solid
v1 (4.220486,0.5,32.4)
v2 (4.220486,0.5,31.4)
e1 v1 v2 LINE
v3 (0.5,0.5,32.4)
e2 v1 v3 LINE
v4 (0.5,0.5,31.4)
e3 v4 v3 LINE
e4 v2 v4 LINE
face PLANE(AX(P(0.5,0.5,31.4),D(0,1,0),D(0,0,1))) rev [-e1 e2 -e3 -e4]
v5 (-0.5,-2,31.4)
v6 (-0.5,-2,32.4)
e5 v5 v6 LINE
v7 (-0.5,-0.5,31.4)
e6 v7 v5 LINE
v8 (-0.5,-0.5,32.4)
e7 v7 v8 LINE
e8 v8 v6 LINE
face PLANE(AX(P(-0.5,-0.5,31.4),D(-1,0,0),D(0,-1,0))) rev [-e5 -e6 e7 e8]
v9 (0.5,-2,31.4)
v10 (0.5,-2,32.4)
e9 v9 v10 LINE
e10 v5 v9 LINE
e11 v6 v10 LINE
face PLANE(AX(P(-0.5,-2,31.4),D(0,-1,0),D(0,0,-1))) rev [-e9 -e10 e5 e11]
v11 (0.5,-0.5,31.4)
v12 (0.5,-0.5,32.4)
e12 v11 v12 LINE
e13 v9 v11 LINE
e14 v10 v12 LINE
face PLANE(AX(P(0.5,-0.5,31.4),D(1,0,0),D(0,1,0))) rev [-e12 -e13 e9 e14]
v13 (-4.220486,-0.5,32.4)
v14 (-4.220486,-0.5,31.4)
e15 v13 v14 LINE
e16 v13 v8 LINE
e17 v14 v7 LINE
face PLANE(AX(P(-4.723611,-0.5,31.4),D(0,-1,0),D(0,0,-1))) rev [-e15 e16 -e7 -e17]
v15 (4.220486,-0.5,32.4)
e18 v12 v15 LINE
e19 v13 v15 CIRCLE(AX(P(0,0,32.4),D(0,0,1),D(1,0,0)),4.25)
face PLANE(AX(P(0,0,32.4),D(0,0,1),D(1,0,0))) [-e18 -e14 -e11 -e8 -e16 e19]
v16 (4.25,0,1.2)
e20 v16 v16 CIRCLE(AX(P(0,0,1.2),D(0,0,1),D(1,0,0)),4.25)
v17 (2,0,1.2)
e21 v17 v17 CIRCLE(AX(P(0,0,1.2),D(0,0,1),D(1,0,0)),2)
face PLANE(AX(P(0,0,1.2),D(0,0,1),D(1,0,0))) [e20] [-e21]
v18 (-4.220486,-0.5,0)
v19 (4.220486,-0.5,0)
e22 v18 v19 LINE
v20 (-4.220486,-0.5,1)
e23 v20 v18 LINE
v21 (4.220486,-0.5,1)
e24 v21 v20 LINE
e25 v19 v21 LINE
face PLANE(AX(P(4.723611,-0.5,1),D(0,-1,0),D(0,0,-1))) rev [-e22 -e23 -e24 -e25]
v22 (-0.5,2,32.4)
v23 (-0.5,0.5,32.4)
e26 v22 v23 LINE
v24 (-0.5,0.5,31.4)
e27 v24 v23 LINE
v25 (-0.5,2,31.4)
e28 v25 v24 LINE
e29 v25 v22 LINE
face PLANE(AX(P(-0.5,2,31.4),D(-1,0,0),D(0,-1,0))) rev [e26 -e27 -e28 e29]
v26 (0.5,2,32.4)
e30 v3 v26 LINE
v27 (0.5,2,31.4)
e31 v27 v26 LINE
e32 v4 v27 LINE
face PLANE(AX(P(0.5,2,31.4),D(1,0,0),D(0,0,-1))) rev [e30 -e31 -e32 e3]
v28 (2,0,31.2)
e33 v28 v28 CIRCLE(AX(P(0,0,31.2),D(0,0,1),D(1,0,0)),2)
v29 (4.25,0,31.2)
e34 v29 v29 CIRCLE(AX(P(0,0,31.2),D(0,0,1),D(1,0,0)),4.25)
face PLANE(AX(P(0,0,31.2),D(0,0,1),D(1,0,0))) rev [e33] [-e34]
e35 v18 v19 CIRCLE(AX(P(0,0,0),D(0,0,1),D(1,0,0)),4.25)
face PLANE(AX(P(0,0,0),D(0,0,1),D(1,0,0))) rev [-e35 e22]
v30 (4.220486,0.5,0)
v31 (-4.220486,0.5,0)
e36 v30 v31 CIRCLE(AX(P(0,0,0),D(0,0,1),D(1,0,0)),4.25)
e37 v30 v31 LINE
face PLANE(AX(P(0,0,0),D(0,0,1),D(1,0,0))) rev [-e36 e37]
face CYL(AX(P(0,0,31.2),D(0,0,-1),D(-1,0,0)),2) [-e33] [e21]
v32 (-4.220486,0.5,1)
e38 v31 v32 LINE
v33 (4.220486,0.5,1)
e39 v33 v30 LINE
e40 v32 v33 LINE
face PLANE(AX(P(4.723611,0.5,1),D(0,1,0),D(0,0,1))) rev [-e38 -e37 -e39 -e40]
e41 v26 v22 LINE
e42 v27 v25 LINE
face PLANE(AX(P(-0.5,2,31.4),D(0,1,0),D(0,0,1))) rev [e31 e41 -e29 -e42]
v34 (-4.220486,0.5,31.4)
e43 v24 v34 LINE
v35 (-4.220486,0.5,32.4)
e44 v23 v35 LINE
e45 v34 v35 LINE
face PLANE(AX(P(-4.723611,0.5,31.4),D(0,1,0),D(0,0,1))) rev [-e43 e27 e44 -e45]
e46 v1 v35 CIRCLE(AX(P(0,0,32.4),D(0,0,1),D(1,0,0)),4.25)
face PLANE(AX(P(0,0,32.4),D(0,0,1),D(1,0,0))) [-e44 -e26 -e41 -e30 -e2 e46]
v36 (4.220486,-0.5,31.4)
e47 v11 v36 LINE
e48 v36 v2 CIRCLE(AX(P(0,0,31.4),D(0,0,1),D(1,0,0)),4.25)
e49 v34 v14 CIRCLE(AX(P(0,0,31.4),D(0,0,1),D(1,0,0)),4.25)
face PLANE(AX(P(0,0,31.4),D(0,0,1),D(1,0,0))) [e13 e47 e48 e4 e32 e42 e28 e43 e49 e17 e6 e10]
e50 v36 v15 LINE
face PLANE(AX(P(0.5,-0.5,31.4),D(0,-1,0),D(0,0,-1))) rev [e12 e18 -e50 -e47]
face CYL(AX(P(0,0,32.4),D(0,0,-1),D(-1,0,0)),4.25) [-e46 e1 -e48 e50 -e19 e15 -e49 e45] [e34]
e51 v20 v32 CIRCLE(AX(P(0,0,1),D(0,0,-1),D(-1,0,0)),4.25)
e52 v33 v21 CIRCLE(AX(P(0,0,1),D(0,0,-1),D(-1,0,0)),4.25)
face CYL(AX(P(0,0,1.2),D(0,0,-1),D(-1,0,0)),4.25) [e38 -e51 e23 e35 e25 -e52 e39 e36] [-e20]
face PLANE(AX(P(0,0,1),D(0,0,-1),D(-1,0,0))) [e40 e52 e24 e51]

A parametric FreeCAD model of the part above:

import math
import FreeCAD as App
import Part
import Sketcher

doc = App.newDocument("Part")
params = doc.addObject("Spreadsheet::Sheet", "Params")
for row, (alias, value) in enumerate([
    ("sketch1_diameter", "8.5 mm"),
    ("pad1_length", "1.2 mm"),
    ("sketch2_diameter", "4 mm"),
    ("pad2_length", "30 mm"),
    ("sketch3_diameter", "8.5 mm"),
    ("pad3_length", "1.2 mm"),
    ("sketch4_width", "1 mm"),
    ("sketch4_radius", "4.75 mm"),
    ("sketch4_height", "1.5 mm"),
    ("pocket1_length", "1 mm"),
    ("sketch5_radius", "4.75 mm"),
    ("pocket2_length", "1 mm"),
], start=1):
    params.set(f"A{row}", alias)
    params.set(f"B{row}", "=" + value)
    params.setAlias(f"B{row}", alias)

body = doc.addObject("PartDesign::Body", "Body")

sketch1 = body.newObject("Sketcher::SketchObject", "Sketch")
sketch1.AttachmentSupport = (doc.getObject("XY_Plane"), [""])
sketch1.MapMode = "FlatFace"
sketch1.addGeometry(Part.Circle(App.Vector(0, 0, 0), App.Vector(0, 0, 1), 4.2), False)
sketch1.addConstraint(Sketcher.Constraint("Coincident", 0, 3, -1, 1))
sketch1.addConstraint(Sketcher.Constraint("Diameter", 0, 8.5))
sketch1.setExpression("Constraints[1]", "Params.sketch1_diameter")
pad1 = body.newObject("PartDesign::Pad", "Pad")
pad1.Profile = sketch1
pad1.setExpression("Length", "Params.pad1_length")

sketch2 = body.newObject("Sketcher::SketchObject", "Sketch001")
sketch2.AttachmentSupport = (doc.getObject("XY_Plane"), [""])
sketch2.MapMode = "FlatFace"
sketch2.AttachmentOffset = App.Placement(App.Vector(0, 0, 1.2), App.Rotation())
sketch2.addGeometry(Part.Circle(App.Vector(0, 0, 0), App.Vector(0, 0, 1), 2), False)
sketch2.addConstraint(Sketcher.Constraint("Coincident", 0, 3, -1, 1))
sketch2.addConstraint(Sketcher.Constraint("Diameter", 0, 4.0))
sketch2.setExpression("Constraints[1]", "Params.sketch2_diameter")
pad2 = body.newObject("PartDesign::Pad", "Pad001")
pad2.Profile = sketch2
pad2.setExpression("Length", "Params.pad2_length")

sketch3 = body.newObject("Sketcher::SketchObject", "Sketch002")
sketch3.AttachmentSupport = (doc.getObject("XY_Plane"), [""])
sketch3.MapMode = "FlatFace"
sketch3.AttachmentOffset = App.Placement(App.Vector(0, 0, 31.2), App.Rotation())
sketch3.addGeometry(Part.Circle(App.Vector(0, 0, 0), App.Vector(0, 0, 1), 4.2), False)
sketch3.addConstraint(Sketcher.Constraint("Coincident", 0, 3, -1, 1))
sketch3.addConstraint(Sketcher.Constraint("Diameter", 0, 8.5))
sketch3.setExpression("Constraints[1]", "Params.sketch3_diameter")
pad3 = body.newObject("PartDesign::Pad", "Pad002")
pad3.Profile = sketch3
pad3.setExpression("Length", "Params.pad3_length")

sketch4 = body.newObject("Sketcher::SketchObject", "Sketch003")
sketch4.AttachmentSupport = (doc.getObject("XY_Plane"), [""])
sketch4.MapMode = "FlatFace"
sketch4.AttachmentOffset = App.Placement(App.Vector(0, 0, 32.4), App.Rotation())
sketch4.addGeometry(Part.LineSegment(App.Vector(-0.5, 2, 0), App.Vector(-0.5, 0.5, 0)), False)
sketch4.addGeometry(Part.LineSegment(App.Vector(-0.5, 0.5, 0), App.Vector(-4.7, 0.5, 0)), False)
sketch4.addGeometry(Part.ArcOfCircle(Part.Circle(App.Vector(0, 0, 0), App.Vector(0, 0, 1), 4.8), math.radians(173.96), math.radians(186.04)), False)
sketch4.addGeometry(Part.LineSegment(App.Vector(-4.7, -0.5, 0), App.Vector(-0.5, -0.5, 0)), False)
sketch4.addGeometry(Part.LineSegment(App.Vector(-0.5, -0.5, 0), App.Vector(-0.5, -2, 0)), False)
sketch4.addGeometry(Part.LineSegment(App.Vector(-0.5, -2, 0), App.Vector(0.5, -2, 0)), False)
sketch4.addGeometry(Part.LineSegment(App.Vector(0.5, -2, 0), App.Vector(0.5, -0.5, 0)), False)
sketch4.addGeometry(Part.LineSegment(App.Vector(0.5, -0.5, 0), App.Vector(4.7, -0.5, 0)), False)
sketch4.addGeometry(Part.ArcOfCircle(Part.Circle(App.Vector(0, 0, 0), App.Vector(0, 0, 1), 4.8), math.radians(-6.04), math.radians(6.04)), False)
sketch4.addGeometry(Part.LineSegment(App.Vector(4.7, 0.5, 0), App.Vector(0.5, 0.5, 0)), False)
sketch4.addGeometry(Part.LineSegment(App.Vector(0.5, 0.5, 0), App.Vector(0.5, 2, 0)), False)
sketch4.addGeometry(Part.LineSegment(App.Vector(0.5, 2, 0), App.Vector(-0.5, 2, 0)), False)
sketch4.addConstraint(Sketcher.Constraint("Coincident", 0, 2, 1, 1))
sketch4.addConstraint(Sketcher.Constraint("Coincident", 1, 2, 2, 1))
sketch4.addConstraint(Sketcher.Constraint("Coincident", 2, 2, 3, 1))
sketch4.addConstraint(Sketcher.Constraint("Coincident", 3, 2, 4, 1))
sketch4.addConstraint(Sketcher.Constraint("Coincident", 4, 2, 5, 1))
sketch4.addConstraint(Sketcher.Constraint("Coincident", 5, 2, 6, 1))
sketch4.addConstraint(Sketcher.Constraint("Coincident", 6, 2, 7, 1))
sketch4.addConstraint(Sketcher.Constraint("Coincident", 7, 2, 8, 1))
sketch4.addConstraint(Sketcher.Constraint("Coincident", 8, 2, 9, 1))
sketch4.addConstraint(Sketcher.Constraint("Coincident", 9, 2, 10, 1))
sketch4.addConstraint(Sketcher.Constraint("Coincident", 10, 2, 11, 1))
sketch4.addConstraint(Sketcher.Constraint("Coincident", 11, 2, 0, 1))
sketch4.addConstraint(Sketcher.Constraint("Vertical", 0))
sketch4.addConstraint(Sketcher.Constraint("Horizontal", 1))
sketch4.addConstraint(Sketcher.Constraint("Horizontal", 3))
sketch4.addConstraint(Sketcher.Constraint("Vertical", 4))
sketch4.addConstraint(Sketcher.Constraint("Horizontal", 5))
sketch4.addConstraint(Sketcher.Constraint("Vertical", 6))
sketch4.addConstraint(Sketcher.Constraint("Horizontal", 7))
sketch4.addConstraint(Sketcher.Constraint("Horizontal", 9))
sketch4.addConstraint(Sketcher.Constraint("Vertical", 10))
sketch4.addConstraint(Sketcher.Constraint("Horizontal", 11))
sketch4.addConstraint(Sketcher.Constraint("Coincident", 2, 3, -1, 1))
sketch4.addConstraint(Sketcher.Constraint("Coincident", 8, 3, -1, 1))
sketch4.addConstraint(Sketcher.Constraint("Equal", 2, 8))
sketch4.addConstraint(Sketcher.Constraint("Symmetric", 0, 2, 6, 2, -1, 1))
sketch4.addConstraint(Sketcher.Constraint("Symmetric", 3, 2, 9, 2, -1, 1))
sketch4.addConstraint(Sketcher.Constraint("Symmetric", 3, 2, 6, 2, -2))
sketch4.addConstraint(Sketcher.Constraint("Equal", 0, 4))
sketch4.addConstraint(Sketcher.Constraint("DistanceX", 5, 1, 5, 2, 1.0))
sketch4.addConstraint(Sketcher.Constraint("Radius", 2, 4.75))
sketch4.addConstraint(Sketcher.Constraint("DistanceY", 0, 2, 0, 1, 1.5))
sketch4.addConstraint(Sketcher.Constraint("DistanceY", 4, 2, -1, 1, 2.0))
sketch4.setExpression("Constraints[29]", "Params.sketch4_width")
sketch4.setExpression("Constraints[30]", "Params.sketch4_radius")
sketch4.setExpression("Constraints[31]", "Params.sketch4_height")
pocket1 = body.newObject("PartDesign::Pocket", "Pocket")
pocket1.Profile = sketch4
pocket1.setExpression("Length", "Params.pocket1_length")

sketch5 = body.newObject("Sketcher::SketchObject", "Sketch004")
sketch5.AttachmentSupport = (doc.getObject("XY_Plane"), [""])
sketch5.MapMode = "FlatFace"
sketch5.addGeometry(Part.LineSegment(App.Vector(4.7, -0.5, 0), App.Vector(-4.7, -0.5, 0)), False)
sketch5.addGeometry(Part.ArcOfCircle(Part.Circle(App.Vector(0, 0, 0), App.Vector(0, 0, 1), 4.8), math.radians(173.96), math.radians(186.04)), False)
sketch5.addGeometry(Part.LineSegment(App.Vector(-4.7, 0.5, 0), App.Vector(4.7, 0.5, 0)), False)
sketch5.addGeometry(Part.ArcOfCircle(Part.Circle(App.Vector(0, 0, 0), App.Vector(0, 0, 1), 4.8), math.radians(-6.04), math.radians(6.04)), False)
sketch5.addConstraint(Sketcher.Constraint("Coincident", 0, 2, 1, 2))
sketch5.addConstraint(Sketcher.Constraint("Coincident", 1, 1, 2, 1))
sketch5.addConstraint(Sketcher.Constraint("Coincident", 2, 2, 3, 2))
sketch5.addConstraint(Sketcher.Constraint("Coincident", 3, 1, 0, 1))
sketch5.addConstraint(Sketcher.Constraint("Horizontal", 0))
sketch5.addConstraint(Sketcher.Constraint("Horizontal", 2))
sketch5.addConstraint(Sketcher.Constraint("Coincident", 1, 3, -1, 1))
sketch5.addConstraint(Sketcher.Constraint("Coincident", 3, 3, -1, 1))
sketch5.addConstraint(Sketcher.Constraint("Equal", 1, 3))
sketch5.addConstraint(Sketcher.Constraint("Vertical", 0, 2, 1, 1))
sketch5.addConstraint(Sketcher.Constraint("Radius", 1, 4.75))
sketch5.addConstraint(Sketcher.Constraint("DistanceY", 0, 2, 1, 1, 1.0))
sketch5.setExpression("Constraints[10]", "Params.sketch5_radius")
pocket2 = body.newObject("PartDesign::Pocket", "Pocket001")
pocket2.Profile = sketch5
pocket2.setExpression("Length", "Params.pocket2_length")
pocket2.Reversed = True

doc.recompute()
